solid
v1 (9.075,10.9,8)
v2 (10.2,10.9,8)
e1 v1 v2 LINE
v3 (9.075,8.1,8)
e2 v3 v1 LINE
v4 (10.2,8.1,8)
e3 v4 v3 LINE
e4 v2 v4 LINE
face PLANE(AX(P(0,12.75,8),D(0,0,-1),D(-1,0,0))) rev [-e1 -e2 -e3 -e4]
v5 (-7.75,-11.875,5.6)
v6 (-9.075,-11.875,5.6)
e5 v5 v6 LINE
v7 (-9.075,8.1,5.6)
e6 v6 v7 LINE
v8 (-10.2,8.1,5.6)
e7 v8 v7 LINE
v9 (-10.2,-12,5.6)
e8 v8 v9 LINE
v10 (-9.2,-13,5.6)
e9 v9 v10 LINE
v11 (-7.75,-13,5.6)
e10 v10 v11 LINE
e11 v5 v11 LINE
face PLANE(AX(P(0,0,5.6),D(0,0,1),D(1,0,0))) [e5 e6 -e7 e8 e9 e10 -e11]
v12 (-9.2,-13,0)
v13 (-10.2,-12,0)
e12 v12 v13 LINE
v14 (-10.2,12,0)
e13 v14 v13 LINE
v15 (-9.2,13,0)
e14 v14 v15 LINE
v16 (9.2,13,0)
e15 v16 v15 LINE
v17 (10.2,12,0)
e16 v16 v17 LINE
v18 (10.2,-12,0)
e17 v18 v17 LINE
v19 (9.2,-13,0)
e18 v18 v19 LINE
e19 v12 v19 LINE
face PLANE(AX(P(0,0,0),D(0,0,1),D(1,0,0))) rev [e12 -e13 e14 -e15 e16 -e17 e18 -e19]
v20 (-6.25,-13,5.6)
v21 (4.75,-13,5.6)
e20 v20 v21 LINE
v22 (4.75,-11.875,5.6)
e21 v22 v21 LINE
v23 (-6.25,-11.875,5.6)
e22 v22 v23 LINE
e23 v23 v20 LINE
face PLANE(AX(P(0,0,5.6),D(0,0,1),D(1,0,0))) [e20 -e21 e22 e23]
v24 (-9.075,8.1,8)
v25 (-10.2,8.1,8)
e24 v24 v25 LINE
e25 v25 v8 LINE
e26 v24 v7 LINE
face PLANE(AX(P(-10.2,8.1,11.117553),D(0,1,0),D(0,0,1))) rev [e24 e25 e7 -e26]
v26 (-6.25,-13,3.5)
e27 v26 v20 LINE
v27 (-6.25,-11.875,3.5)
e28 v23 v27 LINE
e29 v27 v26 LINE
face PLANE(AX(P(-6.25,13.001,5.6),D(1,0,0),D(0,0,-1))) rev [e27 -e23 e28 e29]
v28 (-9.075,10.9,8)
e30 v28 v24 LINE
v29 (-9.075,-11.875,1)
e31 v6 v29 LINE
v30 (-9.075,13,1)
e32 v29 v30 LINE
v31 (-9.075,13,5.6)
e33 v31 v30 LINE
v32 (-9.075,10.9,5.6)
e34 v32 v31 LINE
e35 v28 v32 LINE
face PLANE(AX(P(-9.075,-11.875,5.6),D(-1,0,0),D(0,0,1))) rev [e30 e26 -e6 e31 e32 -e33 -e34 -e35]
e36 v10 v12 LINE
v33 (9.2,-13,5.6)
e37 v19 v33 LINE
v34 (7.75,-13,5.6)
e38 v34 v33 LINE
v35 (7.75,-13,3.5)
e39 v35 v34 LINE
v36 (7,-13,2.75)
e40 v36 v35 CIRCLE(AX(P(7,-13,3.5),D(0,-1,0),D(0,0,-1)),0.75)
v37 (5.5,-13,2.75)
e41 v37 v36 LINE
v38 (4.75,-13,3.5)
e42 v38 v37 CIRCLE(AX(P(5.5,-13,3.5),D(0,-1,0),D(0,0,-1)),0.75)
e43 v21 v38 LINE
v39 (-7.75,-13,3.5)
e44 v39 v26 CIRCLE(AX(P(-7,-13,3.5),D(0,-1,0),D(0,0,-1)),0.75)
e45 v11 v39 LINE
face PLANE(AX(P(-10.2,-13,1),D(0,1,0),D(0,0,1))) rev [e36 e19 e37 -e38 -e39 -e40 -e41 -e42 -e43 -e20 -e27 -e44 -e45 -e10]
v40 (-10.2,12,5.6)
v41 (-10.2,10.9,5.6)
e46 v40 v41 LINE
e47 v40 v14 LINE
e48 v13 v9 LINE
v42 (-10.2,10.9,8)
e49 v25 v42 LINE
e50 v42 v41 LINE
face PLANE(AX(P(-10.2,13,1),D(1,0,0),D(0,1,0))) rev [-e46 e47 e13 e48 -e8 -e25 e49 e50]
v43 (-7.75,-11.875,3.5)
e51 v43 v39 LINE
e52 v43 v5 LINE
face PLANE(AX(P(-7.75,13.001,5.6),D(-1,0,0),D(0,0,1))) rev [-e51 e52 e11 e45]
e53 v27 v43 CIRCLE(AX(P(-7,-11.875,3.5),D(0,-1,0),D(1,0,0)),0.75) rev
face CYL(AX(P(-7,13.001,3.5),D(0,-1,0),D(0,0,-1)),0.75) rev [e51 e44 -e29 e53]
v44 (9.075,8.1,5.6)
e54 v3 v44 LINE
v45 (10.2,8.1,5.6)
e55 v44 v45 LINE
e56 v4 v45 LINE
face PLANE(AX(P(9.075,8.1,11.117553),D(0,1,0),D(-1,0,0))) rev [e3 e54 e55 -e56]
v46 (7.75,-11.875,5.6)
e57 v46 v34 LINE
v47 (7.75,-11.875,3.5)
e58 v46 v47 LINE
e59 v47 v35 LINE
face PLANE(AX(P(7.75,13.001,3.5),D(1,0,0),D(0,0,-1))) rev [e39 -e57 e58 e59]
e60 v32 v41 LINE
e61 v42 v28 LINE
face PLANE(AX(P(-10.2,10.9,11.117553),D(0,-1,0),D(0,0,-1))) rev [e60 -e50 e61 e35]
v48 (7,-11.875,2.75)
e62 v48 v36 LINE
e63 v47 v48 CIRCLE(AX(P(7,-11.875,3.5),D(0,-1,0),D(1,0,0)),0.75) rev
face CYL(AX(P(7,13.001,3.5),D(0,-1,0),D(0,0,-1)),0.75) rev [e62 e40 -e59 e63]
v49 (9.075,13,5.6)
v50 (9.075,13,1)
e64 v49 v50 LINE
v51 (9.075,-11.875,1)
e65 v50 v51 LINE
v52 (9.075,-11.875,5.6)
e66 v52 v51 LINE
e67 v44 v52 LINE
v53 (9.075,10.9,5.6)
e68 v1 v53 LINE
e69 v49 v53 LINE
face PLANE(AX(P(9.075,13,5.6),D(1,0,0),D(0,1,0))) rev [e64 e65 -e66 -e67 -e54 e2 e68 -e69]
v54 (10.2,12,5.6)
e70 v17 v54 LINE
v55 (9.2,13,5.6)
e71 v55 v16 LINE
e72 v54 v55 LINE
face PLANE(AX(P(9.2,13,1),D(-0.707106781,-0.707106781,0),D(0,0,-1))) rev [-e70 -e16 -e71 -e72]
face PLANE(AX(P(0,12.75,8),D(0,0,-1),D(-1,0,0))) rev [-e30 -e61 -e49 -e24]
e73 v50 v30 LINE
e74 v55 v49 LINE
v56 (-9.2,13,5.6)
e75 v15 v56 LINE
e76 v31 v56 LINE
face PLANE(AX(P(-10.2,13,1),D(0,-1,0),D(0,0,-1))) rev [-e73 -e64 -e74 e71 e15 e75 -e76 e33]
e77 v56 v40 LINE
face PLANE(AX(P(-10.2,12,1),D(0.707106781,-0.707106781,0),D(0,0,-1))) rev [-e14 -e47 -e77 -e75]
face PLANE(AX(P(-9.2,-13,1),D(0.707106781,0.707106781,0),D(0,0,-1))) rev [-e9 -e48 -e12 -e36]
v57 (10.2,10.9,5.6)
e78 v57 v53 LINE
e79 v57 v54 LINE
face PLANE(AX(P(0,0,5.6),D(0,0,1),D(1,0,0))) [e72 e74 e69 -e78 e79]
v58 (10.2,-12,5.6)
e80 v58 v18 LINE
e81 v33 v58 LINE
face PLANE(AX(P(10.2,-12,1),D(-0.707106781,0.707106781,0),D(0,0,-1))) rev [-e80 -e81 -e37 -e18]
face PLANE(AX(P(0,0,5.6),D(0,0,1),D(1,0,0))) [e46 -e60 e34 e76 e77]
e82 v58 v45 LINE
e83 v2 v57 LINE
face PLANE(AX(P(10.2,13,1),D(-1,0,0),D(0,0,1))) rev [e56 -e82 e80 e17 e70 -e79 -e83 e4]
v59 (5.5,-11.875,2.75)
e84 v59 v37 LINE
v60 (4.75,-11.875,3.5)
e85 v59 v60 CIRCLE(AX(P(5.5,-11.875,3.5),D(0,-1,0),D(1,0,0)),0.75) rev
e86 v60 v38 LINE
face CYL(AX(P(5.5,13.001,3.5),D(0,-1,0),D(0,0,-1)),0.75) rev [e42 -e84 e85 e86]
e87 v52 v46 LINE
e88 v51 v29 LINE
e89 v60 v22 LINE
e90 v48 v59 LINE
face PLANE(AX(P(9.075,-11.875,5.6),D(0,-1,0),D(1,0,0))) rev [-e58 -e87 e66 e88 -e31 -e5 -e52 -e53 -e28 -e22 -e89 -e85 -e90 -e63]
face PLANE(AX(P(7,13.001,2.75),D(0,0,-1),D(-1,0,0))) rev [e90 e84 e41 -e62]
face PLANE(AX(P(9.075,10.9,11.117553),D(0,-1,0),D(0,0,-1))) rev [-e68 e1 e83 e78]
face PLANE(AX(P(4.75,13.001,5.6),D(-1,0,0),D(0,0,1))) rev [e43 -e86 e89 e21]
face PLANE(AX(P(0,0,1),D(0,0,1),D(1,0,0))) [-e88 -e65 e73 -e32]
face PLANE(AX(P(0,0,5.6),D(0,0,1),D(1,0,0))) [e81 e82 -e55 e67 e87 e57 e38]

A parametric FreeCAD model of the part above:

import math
import FreeCAD as App
import Part
import Sketcher

V = App.Vector
Q = App.Units.Quantity


def edges_at(feature, points):
    """Names of the edges that pass closest to the given points."""
    edges = feature.Shape.Edges
    near = lambda p: min(range(len(edges)), key=lambda i: edges[i].distToShape(Part.Vertex(*p))[0])
    return sorted({f"Edge{near(p) + 1}" for p in points})

doc = App.newDocument("Part")
body = doc.addObject("PartDesign::Body", "Body")

sketch1 = body.newObject("Sketcher::SketchObject", "Sketch")
sketch1.AttachmentSupport = (doc.getObject("XY_Plane"), [""])
sketch1.MapMode = "FlatFace"
sketch1.addGeometry(Part.LineSegment(V(-10, 13, 0), V(-10, -13, 0)), False)
sketch1.addGeometry(Part.LineSegment(V(-10, -13, 0), V(10, -13, 0)), False)
sketch1.addGeometry(Part.LineSegment(V(10, -13, 0), V(10, 13, 0)), False)
sketch1.addGeometry(Part.LineSegment(V(10, 13, 0), V(-10, 13, 0)), False)
sketch1.addConstraint(Sketcher.Constraint("Coincident", 0, 2, 1, 1))
sketch1.addConstraint(Sketcher.Constraint("Coincident", 1, 2, 2, 1))
sketch1.addConstraint(Sketcher.Constraint("Coincident", 2, 2, 3, 1))
sketch1.addConstraint(Sketcher.Constraint("Coincident", 3, 2, 0, 1))
sketch1.addConstraint(Sketcher.Constraint("Vertical", 0))
sketch1.addConstraint(Sketcher.Constraint("Horizontal", 1))
sketch1.addConstraint(Sketcher.Constraint("Vertical", 2))
sketch1.addConstraint(Sketcher.Constraint("Horizontal", 3))
sketch1.addConstraint(Sketcher.Constraint("Symmetric", 0, 2, 2, 2, -1, 1))
sketch1.addConstraint(Sketcher.Constraint("DistanceY", 0, 2, 0, 1, Q("26 mm")))
sketch1.addConstraint(Sketcher.Constraint("DistanceX", 1, 1, 1, 2, Q("20.4 mm")))
pad1 = body.newObject("PartDesign::Pad", "Pad")
pad1.Profile = sketch1
pad1.Length = 1

sketch2 = body.newObject("Sketcher::SketchObject", "Sketch001")
sketch2.AttachmentSupport = (doc.getObject("XY_Plane"), [""])
sketch2.MapMode = "FlatFace"
sketch2.AttachmentOffset = App.Placement(V(0, 0, 1), App.Rotation())
sketch2.addGeometry(Part.LineSegment(V(-10.2, 13, 0), V(-10.2, -13, 0)), False)
sketch2.addGeometry(Part.LineSegment(V(-10.2, -13, 0), V(10.2, -13, 0)), False)
sketch2.addGeometry(Part.LineSegment(V(10.2, -13, 0), V(10.2, 13, 0)), False)
sketch2.addGeometry(Part.LineSegment(V(10.2, 13, 0), V(9.1, 13, 0)), False)
sketch2.addGeometry(Part.LineSegment(V(9.1, 13, 0), V(9.1, -11.9, 0)), False)
sketch2.addGeometry(Part.LineSegment(V(9.1, -11.9, 0), V(-9.1, -11.9, 0)), False)
sketch2.addGeometry(Part.LineSegment(V(-9.1, -11.9, 0), V(-9.1, 13, 0)), False)
sketch2.addGeometry(Part.LineSegment(V(-9.1, 13, 0), V(-10.2, 13, 0)), False)
sketch2.addConstraint(Sketcher.Constraint("Coincident", 0, 2, 1, 1))
sketch2.addConstraint(Sketcher.Constraint("Coincident", 1, 2, 2, 1))
sketch2.addConstraint(Sketcher.Constraint("Coincident", 2, 2, 3, 1))
sketch2.addConstraint(Sketcher.Constraint("Coincident", 3, 2, 4, 1))
sketch2.addConstraint(Sketcher.Constraint("Coincident", 4, 2, 5, 1))
sketch2.addConstraint(Sketcher.Constraint("Coincident", 5, 2, 6, 1))
sketch2.addConstraint(Sketcher.Constraint("Coincident", 6, 2, 7, 1))
sketch2.addConstraint(Sketcher.Constraint("Coincident", 7, 2, 0, 1))
sketch2.addConstraint(Sketcher.Constraint("Vertical", 0))
sketch2.addConstraint(Sketcher.Constraint("Horizontal", 1))
sketch2.addConstraint(Sketcher.Constraint("Vertical", 2))
sketch2.addConstraint(Sketcher.Constraint("Horizontal", 3))
sketch2.addConstraint(Sketcher.Constraint("Vertical", 4))
sketch2.addConstraint(Sketcher.Constraint("Horizontal", 5))
sketch2.addConstraint(Sketcher.Constraint("Vertical", 6))
sketch2.addConstraint(Sketcher.Constraint("Horizontal", 7))
sketch2.addConstraint(Sketcher.Constraint("Symmetric", 0, 2, 2, 2, -1, 1))
sketch2.addConstraint(Sketcher.Constraint("Symmetric", 3, 2, 6, 2, -2))
sketch2.addConstraint(Sketcher.Constraint("DistanceY", 0, 2, 0, 1, Q("26 mm")))
sketch2.addConstraint(Sketcher.Constraint("DistanceX", 1, 1, 1, 2, Q("20.4 mm")))
sketch2.addConstraint(Sketcher.Constraint("DistanceX", 5, 2, 5, 1, Q("18.15 mm")))
sketch2.addConstraint(Sketcher.Constraint("DistanceY", 4, 2, 4, 1, Q("24.875 mm")))
pad2 = body.newObject("PartDesign::Pad", "Pad001")
pad2.Profile = sketch2
pad2.Length = 4.6
doc.recompute()

chamfer = body.newObject("PartDesign::Chamfer", "Chamfer")
chamfer.Base = (pad2, edges_at(pad2, [
    (-10.2, 13, 2.8),
    (10.2, 13, 2.8),
    (10.2, -13, 2.8),
    (-10.2, -13, 2.8),
]))
chamfer.Size = 1

sketch3 = body.newObject("Sketcher::SketchObject", "Sketch002")
sketch3.AttachmentSupport = (doc.getObject("XZ_Plane"), [""])
sketch3.MapMode = "FlatFace"
sketch3.AttachmentOffset = App.Placement(V(0, 0, 13), App.Rotation())
sketch3.addGeometry(Part.LineSegment(V(-6.2, 5.6, 0), V(-7.8, 5.6, 0)), False)
sketch3.addGeometry(Part.LineSegment(V(-7.8, 5.6, 0), V(-7.8, 3.5, 0)), False)
sketch3.addGeometry(Part.ArcOfCircle(Part.Circle(V(-7, 3.5, 0), V(0, 0, 1), 0.8), math.radians(180), math.radians(360)), False)
sketch3.addGeometry(Part.LineSegment(V(-6.2, 3.5, 0), V(-6.2, 5.6, 0)), False)
sketch3.addConstraint(Sketcher.Constraint("Coincident", 0, 2, 1, 1))
sketch3.addConstraint(Sketcher.Constraint("Tangent", 1, 2, 2, 1))
sketch3.addConstraint(Sketcher.Constraint("Tangent", 2, 2, 3, 1))
sketch3.addConstraint(Sketcher.Constraint("Coincident", 3, 2, 0, 1))
sketch3.addConstraint(Sketcher.Constraint("Horizontal", 0))
sketch3.addConstraint(Sketcher.Constraint("Vertical", 1))
sketch3.addConstraint(Sketcher.Constraint("Vertical", 3))
sketch3.addConstraint(Sketcher.Constraint("Radius", 2, Q("0.75 mm")))
sketch3.addConstraint(Sketcher.Constraint("DistanceY", 1, 2, 1, 1, Q("2.1 mm")))
sketch3.addConstraint(Sketcher.Constraint("DistanceX", 2, 3, -1, 1, Q("7 mm")))
sketch3.addConstraint(Sketcher.Constraint("DistanceY", -1, 1, 2, 3, Q("3.5 mm")))
pocket1 = body.newObject("PartDesign::Pocket", "Pocket")
pocket1.Profile = sketch3
pocket1.Type = "UpToFirst"

sketch4 = body.newObject("Sketcher::SketchObject", "Sketch003")
sketch4.AttachmentSupport = (doc.getObject("XZ_Plane"), [""])
sketch4.MapMode = "FlatFace"
sketch4.AttachmentOffset = App.Placement(V(0, 0, 13), App.Rotation())
sketch4.addGeometry(Part.LineSegment(V(7.8, 5.6, 0), V(4.8, 5.6, 0)), False)
sketch4.addGeometry(Part.LineSegment(V(4.8, 5.6, 0), V(4.8, 3.5, 0)), False)
sketch4.addGeometry(Part.ArcOfCircle(Part.Circle(V(5.5, 3.5, 0), V(0, 0, 1), 0.8), math.radians(180), math.radians(270)), False)
sketch4.addGeometry(Part.LineSegment(V(5.5, 2.8, 0), V(7, 2.8, 0)), False)
sketch4.addGeometry(Part.ArcOfCircle(Part.Circle(V(7, 3.5, 0), V(0, 0, 1), 0.8), math.radians(-90), math.radians(0)), False)
sketch4.addGeometry(Part.LineSegment(V(7.8, 3.5, 0), V(7.8, 5.6, 0)), False)
sketch4.addConstraint(Sketcher.Constraint("Coincident", 0, 2, 1, 1))
sketch4.addConstraint(Sketcher.Constraint("Tangent", 1, 2, 2, 1))
sketch4.addConstraint(Sketcher.Constraint("Tangent", 2, 2, 3, 1))
sketch4.addConstraint(Sketcher.Constraint("Tangent", 3, 2, 4, 1))
sketch4.addConstraint(Sketcher.Constraint("Tangent", 4, 2, 5, 1))
sketch4.addConstraint(Sketcher.Constraint("Coincident", 5, 2, 0, 1))
sketch4.addConstraint(Sketcher.Constraint("Horizontal", 0))
sketch4.addConstraint(Sketcher.Constraint("Vertical", 1))
sketch4.addConstraint(Sketcher.Constraint("Horizontal", 3))
sketch4.addConstraint(Sketcher.Constraint("Vertical", 5))
sketch4.addConstraint(Sketcher.Constraint("Equal", 2, 4))
sketch4.addConstraint(Sketcher.Constraint("DistanceX", 0, 2, 0, 1, Q("3 mm")))
sketch4.addConstraint(Sketcher.Constraint("Radius", 2, Q("0.75 mm")))
sketch4.addConstraint(Sketcher.Constraint("DistanceY", 1, 2, 1, 1, Q("2.1 mm")))
sketch4.addConstraint(Sketcher.Constraint("DistanceX", -1, 1, 4, 3, Q("7 mm")))
sketch4.addConstraint(Sketcher.Constraint("DistanceY", -1, 1, 2, 3, Q("3.5 mm")))
pocket2 = body.newObject("PartDesign::Pocket", "Pocket001")
pocket2.Profile = sketch4
pocket2.Type = "UpToFirst"

sketch5 = body.newObject("Sketcher::SketchObject", "Sketch004")
sketch5.AttachmentSupport = (doc.getObject("XY_Plane"), [""])
sketch5.MapMode = "FlatFace"
sketch5.AttachmentOffset = App.Placement(V(0, 0, 5.6), App.Rotation())
sketch5.addGeometry(Part.LineSegment(V(-10.2, 10.9, 0), V(-10.2, 8.1, 0)), False)
sketch5.addGeometry(Part.LineSegment(V(-10.2, 8.1, 0), V(-9.1, 8.1, 0)), False)
sketch5.addGeometry(Part.LineSegment(V(-9.1, 8.1, 0), V(-9.1, 10.9, 0)), False)
sketch5.addGeometry(Part.LineSegment(V(-9.1, 10.9, 0), V(-10.2, 10.9, 0)), False)
sketch5.addGeometry(Part.LineSegment(V(9.1, 10.9, 0), V(9.1, 8.1, 0)), False)
sketch5.addGeometry(Part.LineSegment(V(9.1, 8.1, 0), V(10.2, 8.1, 0)), False)
sketch5.addGeometry(Part.LineSegment(V(10.2, 8.1, 0), V(10.2, 10.9, 0)), False)
sketch5.addGeometry(Part.LineSegment(V(10.2, 10.9, 0), V(9.1, 10.9, 0)), False)
sketch5.addConstraint(Sketcher.Constraint("Coincident", 0, 2, 1, 1))
sketch5.addConstraint(Sketcher.Constraint("Coincident", 1, 2, 2, 1))
sketch5.addConstraint(Sketcher.Constraint("Coincident", 2, 2, 3, 1))
sketch5.addConstraint(Sketcher.Constraint("Coincident", 3, 2, 0, 1))
sketch5.addConstraint(Sketcher.Constraint("Coincident", 4, 2, 5, 1))
sketch5.addConstraint(Sketcher.Constraint("Coincident", 5, 2, 6, 1))
sketch5.addConstraint(Sketcher.Constraint("Coincident", 6, 2, 7, 1))
sketch5.addConstraint(Sketcher.Constraint("Coincident", 7, 2, 4, 1))
sketch5.addConstraint(Sketcher.Constraint("Vertical", 0))
sketch5.addConstraint(Sketcher.Constraint("Horizontal", 1))
sketch5.addConstraint(Sketcher.Constraint("Vertical", 2))
sketch5.addConstraint(Sketcher.Constraint("Horizontal", 3))
sketch5.addConstraint(Sketcher.Constraint("Vertical", 4))
sketch5.addConstraint(Sketcher.Constraint("Horizontal", 5))
sketch5.addConstraint(Sketcher.Constraint("Vertical", 6))
sketch5.addConstraint(Sketcher.Constraint("Horizontal", 7))
sketch5.addConstraint(Sketcher.Constraint("Symmetric", 1, 2, 4, 2, -2))
sketch5.addConstraint(Sketcher.Constraint("Symmetric", 3, 2, 6, 2, -2))
sketch5.addConstraint(Sketcher.Constraint("DistanceY", 0, 2, 0, 1, Q("2.8 mm")))
sketch5.addConstraint(Sketcher.Constraint("DistanceX", 0, 2, -1, 1, Q("10.2 mm")))
sketch5.addConstraint(Sketcher.Constraint("DistanceY", -1, 1, 0, 2, Q("8.1 mm")))
sketch5.addConstraint(Sketcher.Constraint("DistanceX", 1, 1, 1, 2, Q("1.125 mm")))
pad3 = body.newObject("PartDesign::Pad", "Pad002")
pad3.Profile = sketch5
pad3.Length = 2.4

doc.recompute()
